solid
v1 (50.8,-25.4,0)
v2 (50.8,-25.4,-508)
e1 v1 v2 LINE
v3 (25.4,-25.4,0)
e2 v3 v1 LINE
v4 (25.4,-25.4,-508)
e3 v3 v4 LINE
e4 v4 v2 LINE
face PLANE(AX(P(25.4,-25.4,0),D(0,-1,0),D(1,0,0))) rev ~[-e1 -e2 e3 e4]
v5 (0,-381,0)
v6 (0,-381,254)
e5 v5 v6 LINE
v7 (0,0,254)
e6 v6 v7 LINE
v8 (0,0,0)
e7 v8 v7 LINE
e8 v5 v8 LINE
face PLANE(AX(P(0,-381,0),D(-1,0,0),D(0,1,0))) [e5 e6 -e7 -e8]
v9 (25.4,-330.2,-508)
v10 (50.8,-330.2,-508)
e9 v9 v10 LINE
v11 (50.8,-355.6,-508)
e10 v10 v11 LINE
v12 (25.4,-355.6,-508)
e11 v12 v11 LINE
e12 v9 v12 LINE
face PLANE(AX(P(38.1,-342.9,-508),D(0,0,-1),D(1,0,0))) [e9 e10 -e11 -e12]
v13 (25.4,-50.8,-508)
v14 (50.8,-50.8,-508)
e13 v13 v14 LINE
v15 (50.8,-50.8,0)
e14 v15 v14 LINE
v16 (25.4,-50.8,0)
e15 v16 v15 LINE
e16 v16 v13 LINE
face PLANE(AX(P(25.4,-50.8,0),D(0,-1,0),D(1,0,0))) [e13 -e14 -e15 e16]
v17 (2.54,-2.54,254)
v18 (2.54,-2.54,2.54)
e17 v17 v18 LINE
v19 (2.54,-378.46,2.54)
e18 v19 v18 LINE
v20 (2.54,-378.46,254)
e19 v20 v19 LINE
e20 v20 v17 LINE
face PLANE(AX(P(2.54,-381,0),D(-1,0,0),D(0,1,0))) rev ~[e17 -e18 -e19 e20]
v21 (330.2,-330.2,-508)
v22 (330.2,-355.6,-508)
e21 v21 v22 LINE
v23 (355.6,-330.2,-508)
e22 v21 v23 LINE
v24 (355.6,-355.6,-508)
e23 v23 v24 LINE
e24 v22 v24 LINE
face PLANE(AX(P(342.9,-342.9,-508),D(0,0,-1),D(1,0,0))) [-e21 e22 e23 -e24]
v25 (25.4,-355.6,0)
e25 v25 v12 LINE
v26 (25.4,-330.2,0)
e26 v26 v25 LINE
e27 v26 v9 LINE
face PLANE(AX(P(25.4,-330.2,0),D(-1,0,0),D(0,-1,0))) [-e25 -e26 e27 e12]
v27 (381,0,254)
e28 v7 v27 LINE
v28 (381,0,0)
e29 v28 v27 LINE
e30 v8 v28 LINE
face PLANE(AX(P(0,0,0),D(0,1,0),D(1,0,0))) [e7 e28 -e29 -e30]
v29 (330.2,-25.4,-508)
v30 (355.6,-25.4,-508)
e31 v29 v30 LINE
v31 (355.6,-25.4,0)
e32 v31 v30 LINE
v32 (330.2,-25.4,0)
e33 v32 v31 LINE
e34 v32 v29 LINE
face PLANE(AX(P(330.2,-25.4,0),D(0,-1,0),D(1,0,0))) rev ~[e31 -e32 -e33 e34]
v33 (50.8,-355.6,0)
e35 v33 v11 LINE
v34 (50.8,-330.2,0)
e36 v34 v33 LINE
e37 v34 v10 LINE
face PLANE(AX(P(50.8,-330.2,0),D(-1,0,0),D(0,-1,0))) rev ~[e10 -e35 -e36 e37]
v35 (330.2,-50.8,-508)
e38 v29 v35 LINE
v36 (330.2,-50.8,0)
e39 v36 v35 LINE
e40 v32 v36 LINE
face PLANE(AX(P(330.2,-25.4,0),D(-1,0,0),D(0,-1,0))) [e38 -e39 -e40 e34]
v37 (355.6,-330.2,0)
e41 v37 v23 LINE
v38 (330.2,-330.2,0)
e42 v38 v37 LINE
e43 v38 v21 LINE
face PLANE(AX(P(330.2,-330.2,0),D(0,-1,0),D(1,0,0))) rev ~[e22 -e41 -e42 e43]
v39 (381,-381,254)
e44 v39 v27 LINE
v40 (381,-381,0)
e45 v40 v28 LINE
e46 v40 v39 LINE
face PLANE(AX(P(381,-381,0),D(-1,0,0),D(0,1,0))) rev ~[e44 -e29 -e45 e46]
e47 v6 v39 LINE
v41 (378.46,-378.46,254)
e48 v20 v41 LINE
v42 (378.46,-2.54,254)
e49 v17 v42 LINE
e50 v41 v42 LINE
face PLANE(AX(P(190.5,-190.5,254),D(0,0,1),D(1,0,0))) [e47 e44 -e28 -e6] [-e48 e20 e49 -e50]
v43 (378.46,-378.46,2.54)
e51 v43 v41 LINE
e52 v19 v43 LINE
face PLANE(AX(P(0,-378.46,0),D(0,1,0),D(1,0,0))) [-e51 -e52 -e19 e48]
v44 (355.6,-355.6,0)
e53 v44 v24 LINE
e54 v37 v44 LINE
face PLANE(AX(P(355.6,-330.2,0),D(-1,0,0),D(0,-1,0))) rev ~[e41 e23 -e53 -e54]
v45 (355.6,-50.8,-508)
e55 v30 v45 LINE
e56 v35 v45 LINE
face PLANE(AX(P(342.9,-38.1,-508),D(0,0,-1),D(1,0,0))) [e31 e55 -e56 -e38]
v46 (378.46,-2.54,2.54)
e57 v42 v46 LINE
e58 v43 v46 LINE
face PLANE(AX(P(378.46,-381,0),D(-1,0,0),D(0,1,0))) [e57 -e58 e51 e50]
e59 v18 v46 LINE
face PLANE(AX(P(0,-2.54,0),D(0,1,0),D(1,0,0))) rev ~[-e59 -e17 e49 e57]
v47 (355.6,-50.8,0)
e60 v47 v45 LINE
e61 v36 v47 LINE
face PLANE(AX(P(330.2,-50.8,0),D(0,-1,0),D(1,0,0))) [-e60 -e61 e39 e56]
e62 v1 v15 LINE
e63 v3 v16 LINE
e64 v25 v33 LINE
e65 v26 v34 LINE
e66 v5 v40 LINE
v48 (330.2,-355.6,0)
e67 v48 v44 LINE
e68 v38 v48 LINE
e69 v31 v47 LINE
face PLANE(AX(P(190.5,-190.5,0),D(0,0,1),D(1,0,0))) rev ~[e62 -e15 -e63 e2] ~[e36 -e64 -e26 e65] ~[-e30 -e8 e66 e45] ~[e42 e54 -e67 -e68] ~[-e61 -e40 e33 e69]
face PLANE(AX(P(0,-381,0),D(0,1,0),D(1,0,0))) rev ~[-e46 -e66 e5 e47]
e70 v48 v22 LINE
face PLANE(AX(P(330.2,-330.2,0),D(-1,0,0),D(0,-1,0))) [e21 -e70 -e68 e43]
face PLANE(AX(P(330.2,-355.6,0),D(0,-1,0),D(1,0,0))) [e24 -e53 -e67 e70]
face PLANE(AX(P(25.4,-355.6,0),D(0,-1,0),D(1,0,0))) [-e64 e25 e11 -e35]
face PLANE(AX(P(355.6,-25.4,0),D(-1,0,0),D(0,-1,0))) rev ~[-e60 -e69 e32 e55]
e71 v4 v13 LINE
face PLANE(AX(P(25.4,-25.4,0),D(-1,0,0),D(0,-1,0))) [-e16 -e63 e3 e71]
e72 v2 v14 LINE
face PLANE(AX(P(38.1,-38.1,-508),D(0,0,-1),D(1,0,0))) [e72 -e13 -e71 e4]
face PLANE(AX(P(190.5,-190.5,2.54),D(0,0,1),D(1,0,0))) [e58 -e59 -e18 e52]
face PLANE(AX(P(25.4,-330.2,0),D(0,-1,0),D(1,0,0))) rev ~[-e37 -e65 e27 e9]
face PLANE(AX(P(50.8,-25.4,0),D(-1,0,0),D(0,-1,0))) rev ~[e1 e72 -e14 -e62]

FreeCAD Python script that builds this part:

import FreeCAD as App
import Part
import Sketcher

V = App.Vector
Q = App.Units.Quantity


def faces_at(feature, points):
    """Names of the faces that lie closest to the given points."""
    faces = feature.Shape.Faces
    near = lambda p: min(range(len(faces)), key=lambda i: faces[i].distToShape(Part.Vertex(*p))[0])
    return sorted({f"Face{near(p) + 1}" for p in points})


def add_polygon(sketch, points):
    """Adds a closed chain of lines whose ends are joined by coincident constraints."""
    first, n = sketch.GeometryCount, len(points)
    for a, b in zip(points, points[1:] + points[:1]):
        sketch.addGeometry(Part.LineSegment(App.Vector(*a, 0), App.Vector(*b, 0)), False)
    for i in range(n):
        sketch.addConstraint(Sketcher.Constraint("Coincident", first + i, 2, first + (i + 1) % n, 1))

doc = App.newDocument("Part")
body = doc.addObject("PartDesign::Body", "Body")

# Sketch on XY plane
sketch1 = doc.addObject("Sketcher::SketchObject", "Sketch")
body.addObject(sketch1)
sketch1.AttachmentSupport = (doc.XY_Plane, [""])
sketch1.MapMode = "FlatFace"
add_polygon(sketch1, [(0, 0), (0, -381), (381, -381), (381, 0)])  # lines 0-3
sketch1.addConstraint([
    Sketcher.Constraint("Vertical", 0),
    Sketcher.Constraint("Horizontal", 1),
    Sketcher.Constraint("Vertical", 2),
    Sketcher.Constraint("Horizontal", 3),
    Sketcher.Constraint("Coincident", 3, 2, -1, 1),
    Sketcher.Constraint("Equal", 3, 0),
    Sketcher.Constraint("DistanceX", 1, 1, 1, 2, Q("15 in")),
])
pad1 = doc.addObject("PartDesign::Pad", "Pad")
body.addObject(pad1)
pad1.Profile = sketch1
pad1.Length = Q("10 in")
doc.recompute()

thickness = doc.addObject("PartDesign::Thickness", "Thickness")
body.addObject(thickness)
thickness.Base = (pad1, faces_at(pad1, [(190.5, -190.5, 254)]))
thickness.Value = Q("0.1 in")
thickness.Reversed = True
thickness.Join = "Arc"

# Sketch on XY plane
sketch2 = doc.addObject("Sketcher::SketchObject", "Sketch001")
body.addObject(sketch2)
sketch2.AttachmentSupport = (doc.XY_Plane, [""])
sketch2.MapMode = "FlatFace"
add_polygon(sketch2, [(25, -356), (25, -330), (51, -330), (51, -356)])  # lines 0-3
add_polygon(sketch2, [(330, -356), (330, -330), (356, -330), (356, -356)])  # lines 4-7
add_polygon(sketch2, [(25, -51), (25, -25), (51, -25), (51, -51)])  # lines 8-11
add_polygon(sketch2, [(330, -51), (330, -25), (356, -25), (356, -51)])  # lines 12-15
sketch2.addConstraint([
    Sketcher.Constraint("Vertical", 0),
    Sketcher.Constraint("Horizontal", 1),
    Sketcher.Constraint("Vertical", 2),
    Sketcher.Constraint("Horizontal", 3),
    Sketcher.Constraint("Vertical", 4),
    Sketcher.Constraint("Horizontal", 5),
    Sketcher.Constraint("Vertical", 6),
    Sketcher.Constraint("Horizontal", 7),
    Sketcher.Constraint("Vertical", 8),
    Sketcher.Constraint("Horizontal", 9),
    Sketcher.Constraint("Vertical", 10),
    Sketcher.Constraint("Horizontal", 11),
    Sketcher.Constraint("Vertical", 12),
    Sketcher.Constraint("Horizontal", 13),
    Sketcher.Constraint("Vertical", 14),
    Sketcher.Constraint("Horizontal", 15),
    Sketcher.Constraint("Horizontal", 1, 2, 4, 2),
    Sketcher.Constraint("Horizontal", 3, 2, 6, 2),
    Sketcher.Constraint("Horizontal", 9, 2, 12, 2),
    Sketcher.Constraint("Horizontal", 11, 2, 14, 2),
    Sketcher.Constraint("Vertical", 3, 2, 8, 2),
    Sketcher.Constraint("Vertical", 2, 2, 9, 2),
    Sketcher.Constraint("Vertical", 7, 2, 12, 2),
    Sketcher.Constraint("Vertical", 6, 2, 13, 2),
    Sketcher.Constraint("Equal", 3, 5),
    Sketcher.Constraint("Equal", 15, 0),
    Sketcher.Constraint("Equal", 6, 8),
    Sketcher.Constraint("DistanceX", 1, 1, 1, 2, Q("1 in")),
    Sketcher.Constraint("DistanceX", -1, 1, 0, 2, Q("1 in")),
    Sketcher.Constraint("DistanceY", 0, 2, -1, 1, Q("13 in")),
    Sketcher.Constraint("DistanceX", -1, 1, 4, 2, Q("13 in")),
    Sketcher.Constraint("DistanceY", 8, 2, -1, 1, Q("1 in")),
])
pad2 = doc.addObject("PartDesign::Pad", "Pad001")
body.addObject(pad2)
pad2.Profile = sketch2
pad2.Length = Q("20 in")
pad2.Reversed = True

doc.recompute()
